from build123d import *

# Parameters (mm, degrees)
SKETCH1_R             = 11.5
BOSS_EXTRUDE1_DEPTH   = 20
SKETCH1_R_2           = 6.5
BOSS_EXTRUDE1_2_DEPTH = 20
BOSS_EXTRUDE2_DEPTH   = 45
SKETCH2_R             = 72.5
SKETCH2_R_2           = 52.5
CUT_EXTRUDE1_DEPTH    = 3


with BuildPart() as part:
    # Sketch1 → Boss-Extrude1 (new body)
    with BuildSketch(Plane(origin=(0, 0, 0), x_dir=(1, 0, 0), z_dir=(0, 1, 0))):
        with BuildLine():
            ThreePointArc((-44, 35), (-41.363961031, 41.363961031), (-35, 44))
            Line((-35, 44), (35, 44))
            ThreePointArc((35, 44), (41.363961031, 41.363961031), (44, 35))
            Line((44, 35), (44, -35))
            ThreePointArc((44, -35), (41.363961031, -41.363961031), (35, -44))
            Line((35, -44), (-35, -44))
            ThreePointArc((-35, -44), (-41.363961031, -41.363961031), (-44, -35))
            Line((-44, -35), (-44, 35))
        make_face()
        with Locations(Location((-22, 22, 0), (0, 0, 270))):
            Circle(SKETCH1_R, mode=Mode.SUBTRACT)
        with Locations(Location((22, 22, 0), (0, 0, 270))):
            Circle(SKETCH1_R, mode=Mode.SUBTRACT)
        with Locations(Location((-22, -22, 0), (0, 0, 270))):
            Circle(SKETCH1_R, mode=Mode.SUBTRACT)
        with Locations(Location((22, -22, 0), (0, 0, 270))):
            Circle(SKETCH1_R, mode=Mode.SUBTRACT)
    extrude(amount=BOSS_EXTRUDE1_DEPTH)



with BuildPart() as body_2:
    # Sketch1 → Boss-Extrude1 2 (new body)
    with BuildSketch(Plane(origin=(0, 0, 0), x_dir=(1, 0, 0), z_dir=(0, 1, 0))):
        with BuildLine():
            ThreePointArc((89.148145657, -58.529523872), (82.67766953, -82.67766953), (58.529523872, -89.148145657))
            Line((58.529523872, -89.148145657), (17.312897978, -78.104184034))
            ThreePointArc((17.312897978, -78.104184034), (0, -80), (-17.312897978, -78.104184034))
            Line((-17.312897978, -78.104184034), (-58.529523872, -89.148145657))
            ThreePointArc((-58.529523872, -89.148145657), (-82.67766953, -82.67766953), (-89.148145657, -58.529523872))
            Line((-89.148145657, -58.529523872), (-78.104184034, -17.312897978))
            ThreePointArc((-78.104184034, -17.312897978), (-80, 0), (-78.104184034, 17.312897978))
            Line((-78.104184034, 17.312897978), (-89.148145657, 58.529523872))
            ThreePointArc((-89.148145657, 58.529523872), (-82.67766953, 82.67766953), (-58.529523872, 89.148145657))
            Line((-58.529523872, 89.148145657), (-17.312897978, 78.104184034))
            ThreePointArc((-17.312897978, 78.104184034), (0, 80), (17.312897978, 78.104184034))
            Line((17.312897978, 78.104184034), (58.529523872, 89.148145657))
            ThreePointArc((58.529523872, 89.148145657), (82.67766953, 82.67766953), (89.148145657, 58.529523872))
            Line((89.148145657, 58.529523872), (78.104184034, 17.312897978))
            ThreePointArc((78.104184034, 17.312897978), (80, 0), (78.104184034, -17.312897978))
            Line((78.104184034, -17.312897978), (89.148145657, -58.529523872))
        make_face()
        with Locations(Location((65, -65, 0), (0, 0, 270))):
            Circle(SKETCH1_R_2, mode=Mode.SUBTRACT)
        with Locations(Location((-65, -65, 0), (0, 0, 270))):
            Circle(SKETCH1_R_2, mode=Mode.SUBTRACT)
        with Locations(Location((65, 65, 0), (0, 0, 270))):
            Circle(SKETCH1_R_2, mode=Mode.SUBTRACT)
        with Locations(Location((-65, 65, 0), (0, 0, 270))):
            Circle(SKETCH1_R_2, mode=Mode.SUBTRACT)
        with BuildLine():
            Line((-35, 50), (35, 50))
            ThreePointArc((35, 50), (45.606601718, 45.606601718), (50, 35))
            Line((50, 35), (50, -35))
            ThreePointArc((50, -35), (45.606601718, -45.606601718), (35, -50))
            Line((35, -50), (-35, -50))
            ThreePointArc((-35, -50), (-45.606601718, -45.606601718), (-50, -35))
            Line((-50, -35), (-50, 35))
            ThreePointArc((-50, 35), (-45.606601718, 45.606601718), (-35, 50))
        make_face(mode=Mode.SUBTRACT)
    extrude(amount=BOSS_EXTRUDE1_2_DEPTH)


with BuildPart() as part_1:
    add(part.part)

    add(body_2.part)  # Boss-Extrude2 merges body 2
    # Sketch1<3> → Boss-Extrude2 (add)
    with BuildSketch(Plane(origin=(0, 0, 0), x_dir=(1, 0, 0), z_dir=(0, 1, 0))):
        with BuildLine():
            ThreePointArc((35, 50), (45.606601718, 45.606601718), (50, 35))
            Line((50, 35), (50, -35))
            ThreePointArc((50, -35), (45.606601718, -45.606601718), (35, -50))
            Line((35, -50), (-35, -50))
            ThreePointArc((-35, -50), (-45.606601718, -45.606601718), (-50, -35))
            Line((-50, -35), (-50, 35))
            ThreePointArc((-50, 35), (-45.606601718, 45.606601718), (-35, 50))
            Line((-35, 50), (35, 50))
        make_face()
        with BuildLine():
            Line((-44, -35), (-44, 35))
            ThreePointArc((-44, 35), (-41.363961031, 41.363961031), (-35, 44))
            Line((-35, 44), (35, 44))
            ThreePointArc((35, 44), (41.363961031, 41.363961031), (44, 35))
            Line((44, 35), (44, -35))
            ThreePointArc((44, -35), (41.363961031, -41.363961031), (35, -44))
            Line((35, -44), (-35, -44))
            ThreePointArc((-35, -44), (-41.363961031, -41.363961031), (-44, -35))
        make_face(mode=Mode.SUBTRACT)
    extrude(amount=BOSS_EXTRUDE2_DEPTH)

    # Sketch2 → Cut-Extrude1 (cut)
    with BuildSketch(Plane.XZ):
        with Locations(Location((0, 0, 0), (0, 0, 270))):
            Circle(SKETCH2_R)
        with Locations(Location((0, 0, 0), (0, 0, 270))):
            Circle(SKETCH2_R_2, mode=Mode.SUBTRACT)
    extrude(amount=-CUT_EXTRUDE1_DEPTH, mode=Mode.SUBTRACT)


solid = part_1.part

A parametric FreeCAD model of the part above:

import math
import FreeCAD as App
import Part
import Sketcher
Q = App.Units.Quantity

doc = App.newDocument("Part")
body = doc.addObject("PartDesign::Body", "Body")

sketch1 = body.newObject("Sketcher::SketchObject", "Sketch")
sketch1.AttachmentSupport = (doc.getObject("XZ_Plane"), [""])
sketch1.MapMode = "FlatFace"
sketch1.addGeometry([
    Part.ArcOfCircle(Part.Circle(App.Vector(-35, -35, 0), App.Vector(0, 0, 1), 9), math.radians(180), math.radians(270)),
    Part.LineSegment(App.Vector(-44, -35, 0), App.Vector(-44, 35, 0)),
    Part.ArcOfCircle(Part.Circle(App.Vector(-35, 35, 0), App.Vector(0, 0, 1), 9), math.radians(90), math.radians(180)),
    Part.LineSegment(App.Vector(-35, 44, 0), App.Vector(35, 44, 0)),
    Part.ArcOfCircle(Part.Circle(App.Vector(35, 35, 0), App.Vector(0, 0, 1), 9), math.radians(0), math.radians(90)),
    Part.LineSegment(App.Vector(44, 35, 0), App.Vector(44, -35, 0)),
    Part.ArcOfCircle(Part.Circle(App.Vector(35, -35, 0), App.Vector(0, 0, 1), 9), math.radians(-90), math.radians(0)),
    Part.LineSegment(App.Vector(35, -44, 0), App.Vector(-35, -44, 0)),
    Part.Circle(App.Vector(22, 22, 0), App.Vector(0, 0, 1), 11.5),
    Part.Circle(App.Vector(-22, 22, 0), App.Vector(0, 0, 1), 11.5),
    Part.Circle(App.Vector(22, -22, 0), App.Vector(0, 0, 1), 11.5),
    Part.Circle(App.Vector(-22, -22, 0), App.Vector(0, 0, 1), 11.5),
], False)
sketch1.addConstraint([
    Sketcher.Constraint("Tangent", 0, 1, 1, 1),
    Sketcher.Constraint("Tangent", 1, 2, 2, 2),
    Sketcher.Constraint("Tangent", 2, 1, 3, 1),
    Sketcher.Constraint("Tangent", 3, 2, 4, 2),
    Sketcher.Constraint("Tangent", 4, 1, 5, 1),
    Sketcher.Constraint("Tangent", 5, 2, 6, 2),
    Sketcher.Constraint("Tangent", 6, 1, 7, 1),
    Sketcher.Constraint("Tangent", 7, 2, 0, 2),
    Sketcher.Constraint("Vertical", 1),
    Sketcher.Constraint("Horizontal", 3),
    Sketcher.Constraint("Vertical", 5),
    Sketcher.Constraint("Horizontal", 7),
    Sketcher.Constraint("Equal", 0, 2),
    Sketcher.Constraint("Equal", 2, 4),
    Sketcher.Constraint("Equal", 4, 6),
    Sketcher.Constraint("Equal", 8, 9),
    Sketcher.Constraint("Equal", 9, 10),
    Sketcher.Constraint("Equal", 10, 11),
    Sketcher.Constraint("Symmetric", 0, 3, 4, 3, -1, 1),
    Sketcher.Constraint("Symmetric", 9, 3, 10, 3, -1, 1),
    Sketcher.Constraint("Symmetric", 8, 3, 11, 3, -1, 1),
    Sketcher.Constraint("Symmetric", 8, 3, 9, 3, -2),
    Sketcher.Constraint("Equal", 7, 1),
    Sketcher.Constraint("Diameter", 8, Q("23 mm")),
    Sketcher.Constraint("Radius", 0, Q("9 mm")),
    Sketcher.Constraint("DistanceX", 3, 1, 3, 2, Q("70 mm")),
    Sketcher.Constraint("DistanceX", -1, 1, 8, 3, Q("22 mm")),
    Sketcher.Constraint("DistanceY", -1, 1, 8, 3, Q("22 mm")),
])
pad1 = body.newObject("PartDesign::Pad", "Pad")
pad1.Profile = sketch1
pad1.Length = 20
pad1.Reversed = True
body2 = doc.addObject("PartDesign::Body", "Body001")

sketch2 = body2.newObject("Sketcher::SketchObject", "Sketch001")
sketch2.AttachmentSupport = (doc.getObject("XZ_Plane001"), [""])
sketch2.MapMode = "FlatFace"
sketch2.addGeometry([
    Part.ArcOfCircle(Part.Circle(App.Vector(65, 65, 0), App.Vector(0, 0, 1), 25), math.radians(-15), math.radians(105)),
    Part.LineSegment(App.Vector(89.148146, 58.529524, 0), App.Vector(78.104184, 17.312898, 0)),
    Part.ArcOfCircle(Part.Circle(App.Vector(0, 0, 0), App.Vector(0, 0, 1), 80), math.radians(-12.498334), math.radians(12.498334)),
    Part.LineSegment(App.Vector(78.104184, -17.312898, 0), App.Vector(89.148146, -58.529524, 0)),
    Part.ArcOfCircle(Part.Circle(App.Vector(65, -65, 0), App.Vector(0, 0, 1), 25), math.radians(-105), math.radians(15)),
    Part.LineSegment(App.Vector(58.529524, -89.148146, 0), App.Vector(17.312898, -78.104184, 0)),
    Part.ArcOfCircle(Part.Circle(App.Vector(0, 0, 0), App.Vector(0, 0, 1), 80), math.radians(-102.498334), math.radians(-77.501666)),
    Part.LineSegment(App.Vector(-17.312898, -78.104184, 0), App.Vector(-58.529524, -89.148146, 0)),
    Part.ArcOfCircle(Part.Circle(App.Vector(-65, -65, 0), App.Vector(0, 0, 1), 25), math.radians(165), math.radians(285)),
    Part.LineSegment(App.Vector(-89.148146, -58.529524, 0), App.Vector(-78.104184, -17.312898, 0)),
    Part.ArcOfCircle(Part.Circle(App.Vector(0, 0, 0), App.Vector(0, 0, 1), 80), math.radians(167.501666), math.radians(192.498334)),
    Part.LineSegment(App.Vector(-78.104184, 17.312898, 0), App.Vector(-89.148146, 58.529524, 0)),
    Part.ArcOfCircle(Part.Circle(App.Vector(-65, 65, 0), App.Vector(0, 0, 1), 25), math.radians(75), math.radians(195)),
    Part.LineSegment(App.Vector(-58.529524, 89.148146, 0), App.Vector(-17.312898, 78.104184, 0)),
    Part.ArcOfCircle(Part.Circle(App.Vector(0, 0, 0), App.Vector(0, 0, 1), 80), math.radians(77.501666), math.radians(102.498334)),
    Part.LineSegment(App.Vector(17.312898, 78.104184, 0), App.Vector(58.529524, 89.148146, 0)),
    Part.Circle(App.Vector(65, 65, 0), App.Vector(0, 0, 1), 6.5),
    Part.Circle(App.Vector(-65, 65, 0), App.Vector(0, 0, 1), 6.5),
    Part.Circle(App.Vector(65, -65, 0), App.Vector(0, 0, 1), 6.5),
    Part.LineSegment(App.Vector(-35, -50, 0), App.Vector(35, -50, 0)),
    Part.ArcOfCircle(Part.Circle(App.Vector(35, -35, 0), App.Vector(0, 0, 1), 15), math.radians(-90), math.radians(0)),
    Part.LineSegment(App.Vector(50, -35, 0), App.Vector(50, 35, 0)),
    Part.ArcOfCircle(Part.Circle(App.Vector(35, 35, 0), App.Vector(0, 0, 1), 15), math.radians(0), math.radians(90)),
    Part.LineSegment(App.Vector(35, 50, 0), App.Vector(-35, 50, 0)),
    Part.ArcOfCircle(Part.Circle(App.Vector(-35, 35, 0), App.Vector(0, 0, 1), 15), math.radians(90), math.radians(180)),
    Part.LineSegment(App.Vector(-50, 35, 0), App.Vector(-50, -35, 0)),
    Part.ArcOfCircle(Part.Circle(App.Vector(-35, -35, 0), App.Vector(0, 0, 1), 15), math.radians(180), math.radians(270)),
    Part.Circle(App.Vector(-65, -65, 0), App.Vector(0, 0, 1), 6.5),
], False)
sketch2.addConstraint([
    Sketcher.Constraint("Tangent", 0, 1, 1, 1),
    Sketcher.Constraint("Coincident", 1, 2, 2, 2),
    Sketcher.Constraint("Coincident", 2, 1, 3, 1),
    Sketcher.Constraint("Tangent", 3, 2, 4, 2),
    Sketcher.Constraint("Tangent", 4, 1, 5, 1),
    Sketcher.Constraint("Coincident", 5, 2, 6, 2),
    Sketcher.Constraint("Coincident", 6, 1, 7, 1),
    Sketcher.Constraint("Tangent", 7, 2, 8, 2),
    Sketcher.Constraint("Tangent", 8, 1, 9, 1),
    Sketcher.Constraint("Coincident", 9, 2, 10, 2),
    Sketcher.Constraint("Coincident", 10, 1, 11, 1),
    Sketcher.Constraint("Tangent", 11, 2, 12, 2),
    Sketcher.Constraint("Tangent", 12, 1, 13, 1),
    Sketcher.Constraint("Coincident", 13, 2, 14, 2),
    Sketcher.Constraint("Coincident", 14, 1, 15, 1),
    Sketcher.Constraint("Tangent", 15, 2, 0, 2),
    Sketcher.Constraint("Tangent", 19, 2, 20, 1),
    Sketcher.Constraint("Tangent", 20, 2, 21, 1),
    Sketcher.Constraint("Tangent", 21, 2, 22, 1),
    Sketcher.Constraint("Tangent", 22, 2, 23, 1),
    Sketcher.Constraint("Tangent", 23, 2, 24, 1),
    Sketcher.Constraint("Tangent", 24, 2, 25, 1),
    Sketcher.Constraint("Tangent", 25, 2, 26, 1),
    Sketcher.Constraint("Tangent", 26, 2, 19, 1),
    Sketcher.Constraint("Horizontal", 19),
    Sketcher.Constraint("Vertical", 21),
    Sketcher.Constraint("Horizontal", 23),
    Sketcher.Constraint("Vertical", 25),
    Sketcher.Constraint("Coincident", 2, 3, -1, 1),
    Sketcher.Constraint("Coincident", 6, 3, -1, 1),
    Sketcher.Constraint("Coincident", 10, 3, -1, 1),
    Sketcher.Constraint("Coincident", 14, 3, -1, 1),
    Sketcher.Constraint("Coincident", 16, 3, 0, 3),
    Sketcher.Constraint("Coincident", 17, 3, 12, 3),
    Sketcher.Constraint("Coincident", 18, 3, 4, 3),
    Sketcher.Constraint("Coincident", 27, 3, 8, 3),
    Sketcher.Constraint("Equal", 0, 4),
    Sketcher.Constraint("Equal", 2, 6),
    Sketcher.Constraint("Equal", 4, 8),
    Sketcher.Constraint("Equal", 6, 10),
    Sketcher.Constraint("Equal", 8, 12),
    Sketcher.Constraint("Equal", 10, 14),
    Sketcher.Constraint("Equal", 16, 17),
    Sketcher.Constraint("Equal", 17, 18),
    Sketcher.Constraint("Equal", 20, 22),
    Sketcher.Constraint("Equal", 22, 24),
    Sketcher.Constraint("Equal", 24, 26),
    Sketcher.Constraint("Equal", 18, 27),
    Sketcher.Constraint("Symmetric", 0, 3, 8, 3, -1, 1),
    Sketcher.Constraint("Symmetric", 4, 3, 12, 3, -1, 1),
    Sketcher.Constraint("Symmetric", 20, 3, 24, 3, -1, 1),
    Sketcher.Constraint("Symmetric", 4, 3, 8, 3, -2),
    Sketcher.Constraint("Perpendicular", 1, 5),
    Sketcher.Constraint("Perpendicular", 3, 7),
    Sketcher.Constraint("Perpendicular", 5, 9),
    Sketcher.Constraint("Perpendicular", 7, 11),
    Sketcher.Constraint("Perpendicular", 9, 13),
    Sketcher.Constraint("Perpendicular", 11, 15),
    Sketcher.Constraint("Horizontal", 5, 2, 6, 1),
    Sketcher.Constraint("Equal", 23, 21),
    Sketcher.Constraint("Equal", 3, 5),
    Sketcher.Constraint("Diameter", 16, Q("13 mm")),
    Sketcher.Constraint("Radius", 0, Q("25 mm")),
    Sketcher.Constraint("Radius", 2, Q("80 mm")),
    Sketcher.Constraint("Radius", 20, Q("15 mm")),
    Sketcher.Constraint("DistanceX", 19, 1, 19, 2, Q("70 mm")),
    Sketcher.Constraint("Angle", 1, Q("-105 deg")),
    Sketcher.Constraint("DistanceX", -1, 1, 0, 3, Q("65 mm")),
])
pad2 = body2.newObject("PartDesign::Pad", "Pad001")
pad2.Profile = sketch2
pad2.Length = 20
pad2.Reversed = True
body.AllowCompound = True
doc.recompute()

boolean = body.newObject("PartDesign::Boolean", "Boolean")
boolean.Type = "Fuse"
boolean.addObjects([body2])

sketch3 = body.newObject("Sketcher::SketchObject", "Sketch002")
sketch3.AttachmentSupport = (doc.getObject("XZ_Plane"), [""])
sketch3.MapMode = "FlatFace"
sketch3.addGeometry([
    Part.ArcOfCircle(Part.Circle(App.Vector(35, -35, 0), App.Vector(0, 0, 1), 15), math.radians(-90), math.radians(0)),
    Part.LineSegment(App.Vector(35, -50, 0), App.Vector(-35, -50, 0)),
    Part.ArcOfCircle(Part.Circle(App.Vector(-35, -35, 0), App.Vector(0, 0, 1), 15), math.radians(180), math.radians(270)),
    Part.LineSegment(App.Vector(-50, -35, 0), App.Vector(-50, 35, 0)),
    Part.ArcOfCircle(Part.Circle(App.Vector(-35, 35, 0), App.Vector(0, 0, 1), 15), math.radians(90), math.radians(180)),
    Part.LineSegment(App.Vector(-35, 50, 0), App.Vector(35, 50, 0)),
    Part.ArcOfCircle(Part.Circle(App.Vector(35, 35, 0), App.Vector(0, 0, 1), 15), math.radians(0), math.radians(90)),
    Part.LineSegment(App.Vector(50, 35, 0), App.Vector(50, -35, 0)),
    Part.LineSegment(App.Vector(-44, 35, 0), App.Vector(-44, -35, 0)),
    Part.ArcOfCircle(Part.Circle(App.Vector(-35, -35, 0), App.Vector(0, 0, 1), 9), math.radians(180), math.radians(270)),
    Part.LineSegment(App.Vector(-35, -44, 0), App.Vector(35, -44, 0)),
    Part.ArcOfCircle(Part.Circle(App.Vector(35, -35, 0), App.Vector(0, 0, 1), 9), math.radians(-90), math.radians(0)),
    Part.LineSegment(App.Vector(44, -35, 0), App.Vector(44, 35, 0)),
    Part.ArcOfCircle(Part.Circle(App.Vector(35, 35, 0), App.Vector(0, 0, 1), 9), math.radians(0), math.radians(90)),
    Part.LineSegment(App.Vector(35, 44, 0), App.Vector(-35, 44, 0)),
    Part.ArcOfCircle(Part.Circle(App.Vector(-35, 35, 0), App.Vector(0, 0, 1), 9), math.radians(90), math.radians(180)),
], False)
sketch3.addConstraint([
    Sketcher.Constraint("Tangent", 0, 1, 1, 1),
    Sketcher.Constraint("Tangent", 1, 2, 2, 2),
    Sketcher.Constraint("Tangent", 2, 1, 3, 1),
    Sketcher.Constraint("Tangent", 3, 2, 4, 2),
    Sketcher.Constraint("Tangent", 4, 1, 5, 1),
    Sketcher.Constraint("Tangent", 5, 2, 6, 2),
    Sketcher.Constraint("Tangent", 6, 1, 7, 1),
    Sketcher.Constraint("Tangent", 7, 2, 0, 2),
    Sketcher.Constraint("Tangent", 8, 2, 9, 1),
    Sketcher.Constraint("Tangent", 9, 2, 10, 1),
    Sketcher.Constraint("Tangent", 10, 2, 11, 1),
    Sketcher.Constraint("Tangent", 11, 2, 12, 1),
    Sketcher.Constraint("Tangent", 12, 2, 13, 1),
    Sketcher.Constraint("Tangent", 13, 2, 14, 1),
    Sketcher.Constraint("Tangent", 14, 2, 15, 1),
    Sketcher.Constraint("Tangent", 15, 2, 8, 1),
    Sketcher.Constraint("Horizontal", 1),
    Sketcher.Constraint("Vertical", 3),
    Sketcher.Constraint("Horizontal", 5),
    Sketcher.Constraint("Vertical", 7),
    Sketcher.Constraint("Vertical", 8),
    Sketcher.Constraint("Horizontal", 10),
    Sketcher.Constraint("Vertical", 12),
    Sketcher.Constraint("Horizontal", 14),
    Sketcher.Constraint("Coincident", 9, 3, 2, 3),
    Sketcher.Constraint("Coincident", 11, 3, 0, 3),
    Sketcher.Constraint("Coincident", 13, 3, 6, 3),
    Sketcher.Constraint("Equal", 0, 2),
    Sketcher.Constraint("Equal", 2, 4),
    Sketcher.Constraint("Equal", 4, 6),
    Sketcher.Constraint("Equal", 13, 15),
    Sketcher.Constraint("Symmetric", 0, 3, 4, 3, -1, 1),
    Sketcher.Constraint("Equal", 14, 3),
    Sketcher.Constraint("Radius", 0, Q("15 mm")),
    Sketcher.Constraint("Radius", 9, Q("9 mm")),
    Sketcher.Constraint("DistanceX", 1, 2, 1, 1, Q("70 mm")),
])
pad3 = body.newObject("PartDesign::Pad", "Pad002")
pad3.Profile = sketch3
pad3.Length = 45
pad3.Reversed = True

sketch4 = body.newObject("Sketcher::SketchObject", "Sketch003")
sketch4.AttachmentSupport = (doc.getObject("XZ_Plane"), [""])
sketch4.MapMode = "FlatFace"
sketch4.addGeometry([
    Part.Circle(App.Vector(0, 0, 0), App.Vector(0, 0, 1), 72.5),
    Part.Circle(App.Vector(0, 0, 0), App.Vector(0, 0, 1), 52.5),
], False)
sketch4.addConstraint([
    Sketcher.Constraint("Coincident", 0, 3, -1, 1),
    Sketcher.Constraint("Coincident", 1, 3, -1, 1),
    Sketcher.Constraint("Diameter", 0, Q("145 mm")),
    Sketcher.Constraint("Diameter", 1, Q("105 mm")),
])
pocket1 = body.newObject("PartDesign::Pocket", "Pocket")
pocket1.Profile = sketch4
pocket1.Length = 3

doc.recompute()
